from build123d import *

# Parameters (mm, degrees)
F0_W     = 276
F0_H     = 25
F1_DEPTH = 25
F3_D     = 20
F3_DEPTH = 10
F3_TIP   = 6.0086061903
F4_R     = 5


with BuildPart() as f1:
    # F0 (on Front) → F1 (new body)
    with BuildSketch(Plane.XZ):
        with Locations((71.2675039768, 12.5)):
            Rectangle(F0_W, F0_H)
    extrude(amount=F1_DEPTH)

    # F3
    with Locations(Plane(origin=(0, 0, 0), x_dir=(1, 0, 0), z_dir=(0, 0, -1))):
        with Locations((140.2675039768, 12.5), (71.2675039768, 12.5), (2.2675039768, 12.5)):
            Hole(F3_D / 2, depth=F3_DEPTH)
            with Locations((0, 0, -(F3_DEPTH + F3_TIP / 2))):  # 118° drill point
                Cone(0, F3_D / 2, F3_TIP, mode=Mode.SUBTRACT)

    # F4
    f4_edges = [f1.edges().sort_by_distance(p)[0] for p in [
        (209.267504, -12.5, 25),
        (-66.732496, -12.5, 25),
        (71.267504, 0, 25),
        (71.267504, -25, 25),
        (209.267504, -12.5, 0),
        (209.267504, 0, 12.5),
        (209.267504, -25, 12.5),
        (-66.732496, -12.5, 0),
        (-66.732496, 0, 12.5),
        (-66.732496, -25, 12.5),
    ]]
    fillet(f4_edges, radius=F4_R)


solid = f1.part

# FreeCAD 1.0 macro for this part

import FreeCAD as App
import Part
import Sketcher
Q = App.Units.Quantity


def edges_at(feature, points):
    """Names of the edges that pass closest to the given points."""
    edges = feature.Shape.Edges
    near = lambda p: min(range(len(edges)), key=lambda i: edges[i].distToShape(Part.Vertex(*p))[0])
    return sorted({f"Edge{near(p) + 1}" for p in points})

doc = App.newDocument("Part")
body = doc.addObject("PartDesign::Body", "Body")

# Sketch on XZ plane
sketch1 = body.newObject("Sketcher::SketchObject", "Sketch")
sketch1.AttachmentSupport = (doc.getObject("XZ_Plane"), [""])
sketch1.MapMode = "FlatFace"
sketch1.addGeometry([
    Part.LineSegment(App.Vector(-67, 25, 0), App.Vector(-67, 0, 0)),
    Part.LineSegment(App.Vector(-67, 0, 0), App.Vector(209, 0, 0)),
    Part.LineSegment(App.Vector(209, 0, 0), App.Vector(209, 25, 0)),
    Part.LineSegment(App.Vector(209, 25, 0), App.Vector(-67, 25, 0)),
], False)
sketch1.addConstraint([
    Sketcher.Constraint("Coincident", 0, 2, 1, 1),
    Sketcher.Constraint("Coincident", 1, 2, 2, 1),
    Sketcher.Constraint("Coincident", 2, 2, 3, 1),
    Sketcher.Constraint("Coincident", 3, 2, 0, 1),
    Sketcher.Constraint("Vertical", 0),
    Sketcher.Constraint("Horizontal", 1),
    Sketcher.Constraint("Vertical", 2),
    Sketcher.Constraint("Horizontal", 3),
    Sketcher.Constraint("PointOnObject", 0, 2, -1),
    Sketcher.Constraint("DistanceX", 1, 1, 1, 2, Q("276 mm")),
    Sketcher.Constraint("DistanceY", 0, 2, 0, 1, Q("25 mm")),
    Sketcher.Constraint("DistanceX", 0, 2, -1, 1, Q("66.732496 mm")),
])
pad1 = body.newObject("PartDesign::Pad", "Pad")
pad1.Profile = sketch1
pad1.Length = 25

# Sketch on XY plane
sketch2 = body.newObject("Sketcher::SketchObject", "Sketch001")
sketch2.AttachmentSupport = (doc.getObject("XY_Plane"), [""])
sketch2.MapMode = "FlatFace"
sketch2.addGeometry([
    Part.Circle(App.Vector(140, -12, 0), App.Vector(0, 0, 1), 10),
    Part.Circle(App.Vector(71, -12, 0), App.Vector(0, 0, 1), 10),
    Part.Circle(App.Vector(2, -12, 0), App.Vector(0, 0, 1), 10),
], False)
sketch2.addConstraint([
    Sketcher.Constraint("Equal", 0, 1),
    Sketcher.Constraint("Equal", 1, 2),
    Sketcher.Constraint("Horizontal", 0, 3, 1, 3),
    Sketcher.Constraint("Horizontal", 1, 3, 2, 3),
    Sketcher.Constraint("Diameter", 0, Q("20 mm")),
    Sketcher.Constraint("DistanceX", 1, 3, 0, 3, Q("69 mm")),
    Sketcher.Constraint("DistanceX", 2, 3, 1, 3, Q("69 mm")),
    Sketcher.Constraint("DistanceY", 0, 3, -1, 1, Q("12.5 mm")),
    Sketcher.Constraint("DistanceX", -1, 1, 0, 3, Q("140.267504 mm")),
])
doc.recompute()
hole = body.newObject("PartDesign::Hole", "Hole")
hole.Profile = sketch2
hole.ThreadType = "None"
hole.Diameter = 20
hole.DepthType = "Dimension"
hole.Depth = 10
hole.DrillPoint = "Angled"
hole.DrillPointAngle = 118
hole.Reversed = True
doc.recompute()

fillet = body.newObject("PartDesign::Fillet", "Fillet")
fillet.Base = (hole, edges_at(hole, [
    (209.268, -12.5, 25),
    (-66.732, -12.5, 25),
    (71.268, 0, 25),
    (71.268, -25, 25),
    (209.268, -12.5, 0),
    (209.268, 0, 12.5),
    (209.268, -25, 12.5),
    (-66.732, -12.5, 0),
    (-66.732, 0, 12.5),
    (-66.732, -25, 12.5),
]))
fillet.Radius = 5

doc.recompute()
